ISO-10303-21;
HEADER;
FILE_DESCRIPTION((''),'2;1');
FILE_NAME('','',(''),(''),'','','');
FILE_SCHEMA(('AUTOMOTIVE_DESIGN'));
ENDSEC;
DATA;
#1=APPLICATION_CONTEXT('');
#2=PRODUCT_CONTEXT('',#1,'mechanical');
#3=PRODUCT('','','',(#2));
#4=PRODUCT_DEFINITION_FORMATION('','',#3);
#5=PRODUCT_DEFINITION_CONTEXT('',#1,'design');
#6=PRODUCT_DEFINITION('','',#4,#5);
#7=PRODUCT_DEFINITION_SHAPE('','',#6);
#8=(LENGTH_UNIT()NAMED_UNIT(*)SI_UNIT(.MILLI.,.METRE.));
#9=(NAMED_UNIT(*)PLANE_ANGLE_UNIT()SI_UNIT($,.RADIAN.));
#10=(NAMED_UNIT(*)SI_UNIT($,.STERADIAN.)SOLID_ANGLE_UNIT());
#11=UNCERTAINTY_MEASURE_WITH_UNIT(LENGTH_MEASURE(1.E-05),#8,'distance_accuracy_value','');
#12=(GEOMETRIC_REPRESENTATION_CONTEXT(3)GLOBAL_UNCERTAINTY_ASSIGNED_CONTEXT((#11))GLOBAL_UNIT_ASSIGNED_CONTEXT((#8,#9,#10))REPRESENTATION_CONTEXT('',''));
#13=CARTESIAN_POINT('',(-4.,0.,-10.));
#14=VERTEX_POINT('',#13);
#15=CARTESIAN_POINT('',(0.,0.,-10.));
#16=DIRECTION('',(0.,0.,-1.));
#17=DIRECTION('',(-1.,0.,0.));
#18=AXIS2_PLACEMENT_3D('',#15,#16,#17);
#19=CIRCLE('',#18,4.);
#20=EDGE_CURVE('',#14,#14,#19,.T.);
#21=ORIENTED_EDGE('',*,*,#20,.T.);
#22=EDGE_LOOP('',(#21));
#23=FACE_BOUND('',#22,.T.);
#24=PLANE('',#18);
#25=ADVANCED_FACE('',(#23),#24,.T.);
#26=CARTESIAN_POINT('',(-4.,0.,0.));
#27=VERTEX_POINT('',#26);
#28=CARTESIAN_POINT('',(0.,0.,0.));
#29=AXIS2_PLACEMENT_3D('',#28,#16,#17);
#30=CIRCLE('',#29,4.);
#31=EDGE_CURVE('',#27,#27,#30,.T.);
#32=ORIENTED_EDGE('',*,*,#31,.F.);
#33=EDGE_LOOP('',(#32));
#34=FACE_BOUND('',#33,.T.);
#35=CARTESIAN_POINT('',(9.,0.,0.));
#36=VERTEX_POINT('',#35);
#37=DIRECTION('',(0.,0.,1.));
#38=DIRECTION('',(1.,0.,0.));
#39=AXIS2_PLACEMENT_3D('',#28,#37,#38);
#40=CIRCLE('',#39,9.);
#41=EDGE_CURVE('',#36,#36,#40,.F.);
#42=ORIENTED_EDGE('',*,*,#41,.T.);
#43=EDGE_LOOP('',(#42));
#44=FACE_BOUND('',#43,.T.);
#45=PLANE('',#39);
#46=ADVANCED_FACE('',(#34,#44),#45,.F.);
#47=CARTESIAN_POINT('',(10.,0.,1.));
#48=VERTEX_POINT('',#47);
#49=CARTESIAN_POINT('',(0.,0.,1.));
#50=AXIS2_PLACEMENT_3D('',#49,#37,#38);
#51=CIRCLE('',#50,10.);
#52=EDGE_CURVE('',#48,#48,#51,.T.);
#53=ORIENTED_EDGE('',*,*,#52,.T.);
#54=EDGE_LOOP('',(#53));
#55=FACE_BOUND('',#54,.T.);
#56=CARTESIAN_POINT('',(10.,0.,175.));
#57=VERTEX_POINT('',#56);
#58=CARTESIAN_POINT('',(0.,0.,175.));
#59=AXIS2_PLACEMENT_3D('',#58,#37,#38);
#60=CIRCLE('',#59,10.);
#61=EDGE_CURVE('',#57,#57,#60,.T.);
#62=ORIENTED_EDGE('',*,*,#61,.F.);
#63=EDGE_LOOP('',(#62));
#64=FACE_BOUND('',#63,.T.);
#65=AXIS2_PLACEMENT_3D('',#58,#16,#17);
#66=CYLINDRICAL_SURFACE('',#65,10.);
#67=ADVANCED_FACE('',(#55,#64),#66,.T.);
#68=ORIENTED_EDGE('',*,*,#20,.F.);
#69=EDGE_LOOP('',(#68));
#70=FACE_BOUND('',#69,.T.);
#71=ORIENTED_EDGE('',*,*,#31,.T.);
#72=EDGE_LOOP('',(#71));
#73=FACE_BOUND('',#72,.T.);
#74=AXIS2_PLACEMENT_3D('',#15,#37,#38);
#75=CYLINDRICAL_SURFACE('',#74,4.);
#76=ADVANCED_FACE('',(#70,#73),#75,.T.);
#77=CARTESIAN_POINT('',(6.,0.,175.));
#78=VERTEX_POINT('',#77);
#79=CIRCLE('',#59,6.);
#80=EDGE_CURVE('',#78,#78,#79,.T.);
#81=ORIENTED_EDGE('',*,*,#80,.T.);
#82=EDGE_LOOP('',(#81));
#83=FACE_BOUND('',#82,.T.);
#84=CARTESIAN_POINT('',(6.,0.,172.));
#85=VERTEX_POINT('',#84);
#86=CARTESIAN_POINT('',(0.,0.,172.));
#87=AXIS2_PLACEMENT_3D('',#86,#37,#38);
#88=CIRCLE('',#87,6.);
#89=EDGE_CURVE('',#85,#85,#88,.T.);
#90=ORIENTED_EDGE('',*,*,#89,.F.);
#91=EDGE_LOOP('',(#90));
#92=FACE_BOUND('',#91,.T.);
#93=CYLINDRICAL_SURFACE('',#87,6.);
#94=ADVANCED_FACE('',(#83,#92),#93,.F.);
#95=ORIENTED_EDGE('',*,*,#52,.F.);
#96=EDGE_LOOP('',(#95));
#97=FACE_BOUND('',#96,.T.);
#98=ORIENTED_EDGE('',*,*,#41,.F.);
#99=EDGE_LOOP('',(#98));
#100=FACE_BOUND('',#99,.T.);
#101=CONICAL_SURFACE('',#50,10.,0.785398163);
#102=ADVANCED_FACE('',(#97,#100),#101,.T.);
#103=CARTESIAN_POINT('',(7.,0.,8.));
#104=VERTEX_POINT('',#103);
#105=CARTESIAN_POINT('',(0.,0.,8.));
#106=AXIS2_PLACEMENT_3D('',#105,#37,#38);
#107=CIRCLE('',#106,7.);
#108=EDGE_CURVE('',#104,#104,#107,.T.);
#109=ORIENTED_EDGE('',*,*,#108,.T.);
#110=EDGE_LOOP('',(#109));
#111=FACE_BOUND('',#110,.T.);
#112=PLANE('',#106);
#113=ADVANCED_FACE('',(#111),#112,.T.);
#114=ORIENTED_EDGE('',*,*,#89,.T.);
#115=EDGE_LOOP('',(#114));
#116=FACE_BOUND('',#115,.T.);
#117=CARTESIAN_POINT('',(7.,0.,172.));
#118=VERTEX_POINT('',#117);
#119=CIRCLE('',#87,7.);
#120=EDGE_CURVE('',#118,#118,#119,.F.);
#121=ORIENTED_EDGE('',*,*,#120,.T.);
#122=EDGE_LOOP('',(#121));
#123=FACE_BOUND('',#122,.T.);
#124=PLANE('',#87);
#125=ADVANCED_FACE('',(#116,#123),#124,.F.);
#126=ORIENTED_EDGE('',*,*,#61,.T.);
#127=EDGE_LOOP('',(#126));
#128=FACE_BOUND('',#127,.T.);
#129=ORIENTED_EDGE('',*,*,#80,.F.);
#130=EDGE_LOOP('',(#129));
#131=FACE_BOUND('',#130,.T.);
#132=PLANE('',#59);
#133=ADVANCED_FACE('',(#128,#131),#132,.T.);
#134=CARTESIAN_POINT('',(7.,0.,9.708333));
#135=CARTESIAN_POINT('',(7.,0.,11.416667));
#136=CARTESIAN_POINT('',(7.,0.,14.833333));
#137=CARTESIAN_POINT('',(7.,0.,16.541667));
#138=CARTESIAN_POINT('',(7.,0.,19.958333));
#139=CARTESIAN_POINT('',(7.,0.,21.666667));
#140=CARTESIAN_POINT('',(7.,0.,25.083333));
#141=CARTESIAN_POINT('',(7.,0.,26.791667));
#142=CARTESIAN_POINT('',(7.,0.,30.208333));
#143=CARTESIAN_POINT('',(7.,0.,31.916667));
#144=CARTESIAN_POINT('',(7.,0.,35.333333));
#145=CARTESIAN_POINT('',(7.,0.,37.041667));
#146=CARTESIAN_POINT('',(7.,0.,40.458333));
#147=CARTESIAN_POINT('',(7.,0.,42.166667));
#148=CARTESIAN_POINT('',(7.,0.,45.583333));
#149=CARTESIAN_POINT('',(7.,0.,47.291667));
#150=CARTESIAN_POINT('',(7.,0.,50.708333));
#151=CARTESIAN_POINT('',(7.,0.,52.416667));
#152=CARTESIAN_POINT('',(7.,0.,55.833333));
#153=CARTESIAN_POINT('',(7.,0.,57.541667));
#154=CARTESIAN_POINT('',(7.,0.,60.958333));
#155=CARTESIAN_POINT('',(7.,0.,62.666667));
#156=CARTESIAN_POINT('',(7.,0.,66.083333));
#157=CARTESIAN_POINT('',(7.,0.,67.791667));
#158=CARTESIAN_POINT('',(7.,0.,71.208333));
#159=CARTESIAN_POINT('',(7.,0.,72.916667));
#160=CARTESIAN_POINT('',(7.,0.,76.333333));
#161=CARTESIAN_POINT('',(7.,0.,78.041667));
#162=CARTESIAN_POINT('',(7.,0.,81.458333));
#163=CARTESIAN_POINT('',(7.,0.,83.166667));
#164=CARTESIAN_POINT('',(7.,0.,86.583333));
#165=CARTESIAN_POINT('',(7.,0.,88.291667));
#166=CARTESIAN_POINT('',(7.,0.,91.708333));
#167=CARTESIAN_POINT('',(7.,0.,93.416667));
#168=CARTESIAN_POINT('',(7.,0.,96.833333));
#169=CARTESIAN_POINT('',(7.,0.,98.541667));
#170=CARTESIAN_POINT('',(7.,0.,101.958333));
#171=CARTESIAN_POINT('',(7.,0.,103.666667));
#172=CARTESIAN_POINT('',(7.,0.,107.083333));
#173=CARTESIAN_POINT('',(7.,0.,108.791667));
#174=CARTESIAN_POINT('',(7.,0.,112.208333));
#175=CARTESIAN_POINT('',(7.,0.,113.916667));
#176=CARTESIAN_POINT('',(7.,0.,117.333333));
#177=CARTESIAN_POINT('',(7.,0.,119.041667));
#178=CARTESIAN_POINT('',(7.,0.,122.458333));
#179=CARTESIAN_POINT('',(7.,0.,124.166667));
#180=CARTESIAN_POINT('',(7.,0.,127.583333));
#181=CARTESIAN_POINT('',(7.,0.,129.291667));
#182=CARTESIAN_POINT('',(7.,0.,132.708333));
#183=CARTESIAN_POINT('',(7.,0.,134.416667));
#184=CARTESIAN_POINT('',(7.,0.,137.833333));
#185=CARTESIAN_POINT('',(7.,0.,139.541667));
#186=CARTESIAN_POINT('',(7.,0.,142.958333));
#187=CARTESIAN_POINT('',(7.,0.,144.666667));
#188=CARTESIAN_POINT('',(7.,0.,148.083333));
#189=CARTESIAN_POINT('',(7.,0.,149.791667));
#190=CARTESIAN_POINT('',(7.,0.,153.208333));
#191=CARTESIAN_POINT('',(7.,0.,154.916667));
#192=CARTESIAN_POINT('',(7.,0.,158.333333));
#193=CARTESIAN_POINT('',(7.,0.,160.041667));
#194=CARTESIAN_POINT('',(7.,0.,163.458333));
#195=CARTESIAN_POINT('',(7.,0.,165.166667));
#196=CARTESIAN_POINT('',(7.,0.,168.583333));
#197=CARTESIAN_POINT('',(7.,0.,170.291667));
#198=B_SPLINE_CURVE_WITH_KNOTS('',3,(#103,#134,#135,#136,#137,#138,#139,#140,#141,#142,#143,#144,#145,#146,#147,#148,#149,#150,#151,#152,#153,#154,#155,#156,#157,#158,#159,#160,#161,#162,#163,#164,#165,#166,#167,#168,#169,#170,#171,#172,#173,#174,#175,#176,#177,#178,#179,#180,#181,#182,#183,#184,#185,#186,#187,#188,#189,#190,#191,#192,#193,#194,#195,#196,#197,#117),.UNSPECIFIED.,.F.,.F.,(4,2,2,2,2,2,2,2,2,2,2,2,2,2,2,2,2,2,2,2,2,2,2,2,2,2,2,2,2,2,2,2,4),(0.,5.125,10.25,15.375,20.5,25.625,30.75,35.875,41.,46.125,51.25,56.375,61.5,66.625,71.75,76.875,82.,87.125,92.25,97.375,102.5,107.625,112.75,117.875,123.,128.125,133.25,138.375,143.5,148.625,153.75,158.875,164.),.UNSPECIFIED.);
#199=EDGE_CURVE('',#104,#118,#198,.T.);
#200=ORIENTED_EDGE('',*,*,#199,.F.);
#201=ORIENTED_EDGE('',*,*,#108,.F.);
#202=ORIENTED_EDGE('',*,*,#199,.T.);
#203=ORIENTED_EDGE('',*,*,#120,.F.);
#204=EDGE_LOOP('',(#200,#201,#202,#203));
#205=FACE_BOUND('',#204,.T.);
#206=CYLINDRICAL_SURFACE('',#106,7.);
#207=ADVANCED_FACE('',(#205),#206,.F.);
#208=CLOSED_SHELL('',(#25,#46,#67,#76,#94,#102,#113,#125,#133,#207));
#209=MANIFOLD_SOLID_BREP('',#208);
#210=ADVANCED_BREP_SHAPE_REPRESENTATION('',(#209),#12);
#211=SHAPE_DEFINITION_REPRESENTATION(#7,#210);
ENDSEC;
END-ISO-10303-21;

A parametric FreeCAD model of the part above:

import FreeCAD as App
import Part
import Sketcher
Q = App.Units.Quantity


def edges_at(feature, points):
    """Names of the edges that pass closest to the given points."""
    edges = feature.Shape.Edges
    near = lambda p: min(range(len(edges)), key=lambda i: edges[i].distToShape(Part.Vertex(*p))[0])
    return sorted({f"Edge{near(p) + 1}" for p in points})

doc = App.newDocument("Part")
body = doc.addObject("PartDesign::Body", "Body")

# Sketch on XY plane
sketch1 = body.newObject("Sketcher::SketchObject", "Sketch")
sketch1.AttachmentSupport = (doc.getObject("XY_Plane"), [""])
sketch1.MapMode = "FlatFace"
sketch1.addGeometry(Part.Circle(App.Vector(0, 0, 0), App.Vector(0, 0, 1), 10), False)
sketch1.addConstraint([
    Sketcher.Constraint("Coincident", 0, 3, -1, 1),
    Sketcher.Constraint("Diameter", 0, Q("20 mm")),
])
pad1 = body.newObject("PartDesign::Pad", "Pad")
pad1.Profile = sketch1
pad1.Length = 175

# Sketch on XY plane
sketch2 = body.newObject("Sketcher::SketchObject", "Sketch001")
sketch2.AttachmentSupport = (doc.getObject("XY_Plane"), [""])
sketch2.MapMode = "FlatFace"
sketch2.AttachmentOffset = App.Placement(App.Vector(0, 0, 175), App.Rotation())
sketch2.addGeometry(Part.Circle(App.Vector(0, 0, 0), App.Vector(0, 0, 1), 7), False)
sketch2.addConstraint([
    Sketcher.Constraint("Coincident", 0, 3, -1, 1),
    Sketcher.Constraint("Diameter", 0, Q("14 mm")),
])
pocket1 = body.newObject("PartDesign::Pocket", "Pocket")
pocket1.Profile = sketch2
pocket1.Length = 167

# Sketch on XY plane
sketch3 = body.newObject("Sketcher::SketchObject", "Sketch002")
sketch3.AttachmentSupport = (doc.getObject("XY_Plane"), [""])
sketch3.MapMode = "FlatFace"
sketch3.addGeometry(Part.Circle(App.Vector(0, 0, 0), App.Vector(0, 0, 1), 4), False)
sketch3.addConstraint([
    Sketcher.Constraint("Coincident", 0, 3, -1, 1),
    Sketcher.Constraint("Diameter", 0, Q("8 mm")),
])
pad2 = body.newObject("PartDesign::Pad", "Pad001")
pad2.Profile = sketch3
pad2.Length = 10
pad2.Reversed = True
doc.recompute()

chamfer = body.newObject("PartDesign::Chamfer", "Chamfer")
chamfer.Base = (pad2, edges_at(pad2, [(-10, 0, 0)]))
chamfer.Size = 1

# Sketch on XY plane
sketch4 = body.newObject("Sketcher::SketchObject", "Sketch003")
sketch4.AttachmentSupport = (doc.getObject("XY_Plane"), [""])
sketch4.MapMode = "FlatFace"
sketch4.AttachmentOffset = App.Placement(App.Vector(0, 0, 175), App.Rotation())
sketch4.addGeometry([
    Part.Circle(App.Vector(0, 0, 0), App.Vector(0, 0, 1), 7),
    Part.Circle(App.Vector(0, 0, 0), App.Vector(0, 0, 1), 6),
], False)
sketch4.addConstraint([
    Sketcher.Constraint("Coincident", 0, 3, -1, 1),
    Sketcher.Constraint("Coincident", 1, 3, -1, 1),
    Sketcher.Constraint("Diameter", 0, Q("14 mm")),
    Sketcher.Constraint("Diameter", 1, Q("12 mm")),
])
pad3 = body.newObject("PartDesign::Pad", "Pad002")
pad3.Profile = sketch4
pad3.Length = 3
pad3.Reversed = True

doc.recompute()
